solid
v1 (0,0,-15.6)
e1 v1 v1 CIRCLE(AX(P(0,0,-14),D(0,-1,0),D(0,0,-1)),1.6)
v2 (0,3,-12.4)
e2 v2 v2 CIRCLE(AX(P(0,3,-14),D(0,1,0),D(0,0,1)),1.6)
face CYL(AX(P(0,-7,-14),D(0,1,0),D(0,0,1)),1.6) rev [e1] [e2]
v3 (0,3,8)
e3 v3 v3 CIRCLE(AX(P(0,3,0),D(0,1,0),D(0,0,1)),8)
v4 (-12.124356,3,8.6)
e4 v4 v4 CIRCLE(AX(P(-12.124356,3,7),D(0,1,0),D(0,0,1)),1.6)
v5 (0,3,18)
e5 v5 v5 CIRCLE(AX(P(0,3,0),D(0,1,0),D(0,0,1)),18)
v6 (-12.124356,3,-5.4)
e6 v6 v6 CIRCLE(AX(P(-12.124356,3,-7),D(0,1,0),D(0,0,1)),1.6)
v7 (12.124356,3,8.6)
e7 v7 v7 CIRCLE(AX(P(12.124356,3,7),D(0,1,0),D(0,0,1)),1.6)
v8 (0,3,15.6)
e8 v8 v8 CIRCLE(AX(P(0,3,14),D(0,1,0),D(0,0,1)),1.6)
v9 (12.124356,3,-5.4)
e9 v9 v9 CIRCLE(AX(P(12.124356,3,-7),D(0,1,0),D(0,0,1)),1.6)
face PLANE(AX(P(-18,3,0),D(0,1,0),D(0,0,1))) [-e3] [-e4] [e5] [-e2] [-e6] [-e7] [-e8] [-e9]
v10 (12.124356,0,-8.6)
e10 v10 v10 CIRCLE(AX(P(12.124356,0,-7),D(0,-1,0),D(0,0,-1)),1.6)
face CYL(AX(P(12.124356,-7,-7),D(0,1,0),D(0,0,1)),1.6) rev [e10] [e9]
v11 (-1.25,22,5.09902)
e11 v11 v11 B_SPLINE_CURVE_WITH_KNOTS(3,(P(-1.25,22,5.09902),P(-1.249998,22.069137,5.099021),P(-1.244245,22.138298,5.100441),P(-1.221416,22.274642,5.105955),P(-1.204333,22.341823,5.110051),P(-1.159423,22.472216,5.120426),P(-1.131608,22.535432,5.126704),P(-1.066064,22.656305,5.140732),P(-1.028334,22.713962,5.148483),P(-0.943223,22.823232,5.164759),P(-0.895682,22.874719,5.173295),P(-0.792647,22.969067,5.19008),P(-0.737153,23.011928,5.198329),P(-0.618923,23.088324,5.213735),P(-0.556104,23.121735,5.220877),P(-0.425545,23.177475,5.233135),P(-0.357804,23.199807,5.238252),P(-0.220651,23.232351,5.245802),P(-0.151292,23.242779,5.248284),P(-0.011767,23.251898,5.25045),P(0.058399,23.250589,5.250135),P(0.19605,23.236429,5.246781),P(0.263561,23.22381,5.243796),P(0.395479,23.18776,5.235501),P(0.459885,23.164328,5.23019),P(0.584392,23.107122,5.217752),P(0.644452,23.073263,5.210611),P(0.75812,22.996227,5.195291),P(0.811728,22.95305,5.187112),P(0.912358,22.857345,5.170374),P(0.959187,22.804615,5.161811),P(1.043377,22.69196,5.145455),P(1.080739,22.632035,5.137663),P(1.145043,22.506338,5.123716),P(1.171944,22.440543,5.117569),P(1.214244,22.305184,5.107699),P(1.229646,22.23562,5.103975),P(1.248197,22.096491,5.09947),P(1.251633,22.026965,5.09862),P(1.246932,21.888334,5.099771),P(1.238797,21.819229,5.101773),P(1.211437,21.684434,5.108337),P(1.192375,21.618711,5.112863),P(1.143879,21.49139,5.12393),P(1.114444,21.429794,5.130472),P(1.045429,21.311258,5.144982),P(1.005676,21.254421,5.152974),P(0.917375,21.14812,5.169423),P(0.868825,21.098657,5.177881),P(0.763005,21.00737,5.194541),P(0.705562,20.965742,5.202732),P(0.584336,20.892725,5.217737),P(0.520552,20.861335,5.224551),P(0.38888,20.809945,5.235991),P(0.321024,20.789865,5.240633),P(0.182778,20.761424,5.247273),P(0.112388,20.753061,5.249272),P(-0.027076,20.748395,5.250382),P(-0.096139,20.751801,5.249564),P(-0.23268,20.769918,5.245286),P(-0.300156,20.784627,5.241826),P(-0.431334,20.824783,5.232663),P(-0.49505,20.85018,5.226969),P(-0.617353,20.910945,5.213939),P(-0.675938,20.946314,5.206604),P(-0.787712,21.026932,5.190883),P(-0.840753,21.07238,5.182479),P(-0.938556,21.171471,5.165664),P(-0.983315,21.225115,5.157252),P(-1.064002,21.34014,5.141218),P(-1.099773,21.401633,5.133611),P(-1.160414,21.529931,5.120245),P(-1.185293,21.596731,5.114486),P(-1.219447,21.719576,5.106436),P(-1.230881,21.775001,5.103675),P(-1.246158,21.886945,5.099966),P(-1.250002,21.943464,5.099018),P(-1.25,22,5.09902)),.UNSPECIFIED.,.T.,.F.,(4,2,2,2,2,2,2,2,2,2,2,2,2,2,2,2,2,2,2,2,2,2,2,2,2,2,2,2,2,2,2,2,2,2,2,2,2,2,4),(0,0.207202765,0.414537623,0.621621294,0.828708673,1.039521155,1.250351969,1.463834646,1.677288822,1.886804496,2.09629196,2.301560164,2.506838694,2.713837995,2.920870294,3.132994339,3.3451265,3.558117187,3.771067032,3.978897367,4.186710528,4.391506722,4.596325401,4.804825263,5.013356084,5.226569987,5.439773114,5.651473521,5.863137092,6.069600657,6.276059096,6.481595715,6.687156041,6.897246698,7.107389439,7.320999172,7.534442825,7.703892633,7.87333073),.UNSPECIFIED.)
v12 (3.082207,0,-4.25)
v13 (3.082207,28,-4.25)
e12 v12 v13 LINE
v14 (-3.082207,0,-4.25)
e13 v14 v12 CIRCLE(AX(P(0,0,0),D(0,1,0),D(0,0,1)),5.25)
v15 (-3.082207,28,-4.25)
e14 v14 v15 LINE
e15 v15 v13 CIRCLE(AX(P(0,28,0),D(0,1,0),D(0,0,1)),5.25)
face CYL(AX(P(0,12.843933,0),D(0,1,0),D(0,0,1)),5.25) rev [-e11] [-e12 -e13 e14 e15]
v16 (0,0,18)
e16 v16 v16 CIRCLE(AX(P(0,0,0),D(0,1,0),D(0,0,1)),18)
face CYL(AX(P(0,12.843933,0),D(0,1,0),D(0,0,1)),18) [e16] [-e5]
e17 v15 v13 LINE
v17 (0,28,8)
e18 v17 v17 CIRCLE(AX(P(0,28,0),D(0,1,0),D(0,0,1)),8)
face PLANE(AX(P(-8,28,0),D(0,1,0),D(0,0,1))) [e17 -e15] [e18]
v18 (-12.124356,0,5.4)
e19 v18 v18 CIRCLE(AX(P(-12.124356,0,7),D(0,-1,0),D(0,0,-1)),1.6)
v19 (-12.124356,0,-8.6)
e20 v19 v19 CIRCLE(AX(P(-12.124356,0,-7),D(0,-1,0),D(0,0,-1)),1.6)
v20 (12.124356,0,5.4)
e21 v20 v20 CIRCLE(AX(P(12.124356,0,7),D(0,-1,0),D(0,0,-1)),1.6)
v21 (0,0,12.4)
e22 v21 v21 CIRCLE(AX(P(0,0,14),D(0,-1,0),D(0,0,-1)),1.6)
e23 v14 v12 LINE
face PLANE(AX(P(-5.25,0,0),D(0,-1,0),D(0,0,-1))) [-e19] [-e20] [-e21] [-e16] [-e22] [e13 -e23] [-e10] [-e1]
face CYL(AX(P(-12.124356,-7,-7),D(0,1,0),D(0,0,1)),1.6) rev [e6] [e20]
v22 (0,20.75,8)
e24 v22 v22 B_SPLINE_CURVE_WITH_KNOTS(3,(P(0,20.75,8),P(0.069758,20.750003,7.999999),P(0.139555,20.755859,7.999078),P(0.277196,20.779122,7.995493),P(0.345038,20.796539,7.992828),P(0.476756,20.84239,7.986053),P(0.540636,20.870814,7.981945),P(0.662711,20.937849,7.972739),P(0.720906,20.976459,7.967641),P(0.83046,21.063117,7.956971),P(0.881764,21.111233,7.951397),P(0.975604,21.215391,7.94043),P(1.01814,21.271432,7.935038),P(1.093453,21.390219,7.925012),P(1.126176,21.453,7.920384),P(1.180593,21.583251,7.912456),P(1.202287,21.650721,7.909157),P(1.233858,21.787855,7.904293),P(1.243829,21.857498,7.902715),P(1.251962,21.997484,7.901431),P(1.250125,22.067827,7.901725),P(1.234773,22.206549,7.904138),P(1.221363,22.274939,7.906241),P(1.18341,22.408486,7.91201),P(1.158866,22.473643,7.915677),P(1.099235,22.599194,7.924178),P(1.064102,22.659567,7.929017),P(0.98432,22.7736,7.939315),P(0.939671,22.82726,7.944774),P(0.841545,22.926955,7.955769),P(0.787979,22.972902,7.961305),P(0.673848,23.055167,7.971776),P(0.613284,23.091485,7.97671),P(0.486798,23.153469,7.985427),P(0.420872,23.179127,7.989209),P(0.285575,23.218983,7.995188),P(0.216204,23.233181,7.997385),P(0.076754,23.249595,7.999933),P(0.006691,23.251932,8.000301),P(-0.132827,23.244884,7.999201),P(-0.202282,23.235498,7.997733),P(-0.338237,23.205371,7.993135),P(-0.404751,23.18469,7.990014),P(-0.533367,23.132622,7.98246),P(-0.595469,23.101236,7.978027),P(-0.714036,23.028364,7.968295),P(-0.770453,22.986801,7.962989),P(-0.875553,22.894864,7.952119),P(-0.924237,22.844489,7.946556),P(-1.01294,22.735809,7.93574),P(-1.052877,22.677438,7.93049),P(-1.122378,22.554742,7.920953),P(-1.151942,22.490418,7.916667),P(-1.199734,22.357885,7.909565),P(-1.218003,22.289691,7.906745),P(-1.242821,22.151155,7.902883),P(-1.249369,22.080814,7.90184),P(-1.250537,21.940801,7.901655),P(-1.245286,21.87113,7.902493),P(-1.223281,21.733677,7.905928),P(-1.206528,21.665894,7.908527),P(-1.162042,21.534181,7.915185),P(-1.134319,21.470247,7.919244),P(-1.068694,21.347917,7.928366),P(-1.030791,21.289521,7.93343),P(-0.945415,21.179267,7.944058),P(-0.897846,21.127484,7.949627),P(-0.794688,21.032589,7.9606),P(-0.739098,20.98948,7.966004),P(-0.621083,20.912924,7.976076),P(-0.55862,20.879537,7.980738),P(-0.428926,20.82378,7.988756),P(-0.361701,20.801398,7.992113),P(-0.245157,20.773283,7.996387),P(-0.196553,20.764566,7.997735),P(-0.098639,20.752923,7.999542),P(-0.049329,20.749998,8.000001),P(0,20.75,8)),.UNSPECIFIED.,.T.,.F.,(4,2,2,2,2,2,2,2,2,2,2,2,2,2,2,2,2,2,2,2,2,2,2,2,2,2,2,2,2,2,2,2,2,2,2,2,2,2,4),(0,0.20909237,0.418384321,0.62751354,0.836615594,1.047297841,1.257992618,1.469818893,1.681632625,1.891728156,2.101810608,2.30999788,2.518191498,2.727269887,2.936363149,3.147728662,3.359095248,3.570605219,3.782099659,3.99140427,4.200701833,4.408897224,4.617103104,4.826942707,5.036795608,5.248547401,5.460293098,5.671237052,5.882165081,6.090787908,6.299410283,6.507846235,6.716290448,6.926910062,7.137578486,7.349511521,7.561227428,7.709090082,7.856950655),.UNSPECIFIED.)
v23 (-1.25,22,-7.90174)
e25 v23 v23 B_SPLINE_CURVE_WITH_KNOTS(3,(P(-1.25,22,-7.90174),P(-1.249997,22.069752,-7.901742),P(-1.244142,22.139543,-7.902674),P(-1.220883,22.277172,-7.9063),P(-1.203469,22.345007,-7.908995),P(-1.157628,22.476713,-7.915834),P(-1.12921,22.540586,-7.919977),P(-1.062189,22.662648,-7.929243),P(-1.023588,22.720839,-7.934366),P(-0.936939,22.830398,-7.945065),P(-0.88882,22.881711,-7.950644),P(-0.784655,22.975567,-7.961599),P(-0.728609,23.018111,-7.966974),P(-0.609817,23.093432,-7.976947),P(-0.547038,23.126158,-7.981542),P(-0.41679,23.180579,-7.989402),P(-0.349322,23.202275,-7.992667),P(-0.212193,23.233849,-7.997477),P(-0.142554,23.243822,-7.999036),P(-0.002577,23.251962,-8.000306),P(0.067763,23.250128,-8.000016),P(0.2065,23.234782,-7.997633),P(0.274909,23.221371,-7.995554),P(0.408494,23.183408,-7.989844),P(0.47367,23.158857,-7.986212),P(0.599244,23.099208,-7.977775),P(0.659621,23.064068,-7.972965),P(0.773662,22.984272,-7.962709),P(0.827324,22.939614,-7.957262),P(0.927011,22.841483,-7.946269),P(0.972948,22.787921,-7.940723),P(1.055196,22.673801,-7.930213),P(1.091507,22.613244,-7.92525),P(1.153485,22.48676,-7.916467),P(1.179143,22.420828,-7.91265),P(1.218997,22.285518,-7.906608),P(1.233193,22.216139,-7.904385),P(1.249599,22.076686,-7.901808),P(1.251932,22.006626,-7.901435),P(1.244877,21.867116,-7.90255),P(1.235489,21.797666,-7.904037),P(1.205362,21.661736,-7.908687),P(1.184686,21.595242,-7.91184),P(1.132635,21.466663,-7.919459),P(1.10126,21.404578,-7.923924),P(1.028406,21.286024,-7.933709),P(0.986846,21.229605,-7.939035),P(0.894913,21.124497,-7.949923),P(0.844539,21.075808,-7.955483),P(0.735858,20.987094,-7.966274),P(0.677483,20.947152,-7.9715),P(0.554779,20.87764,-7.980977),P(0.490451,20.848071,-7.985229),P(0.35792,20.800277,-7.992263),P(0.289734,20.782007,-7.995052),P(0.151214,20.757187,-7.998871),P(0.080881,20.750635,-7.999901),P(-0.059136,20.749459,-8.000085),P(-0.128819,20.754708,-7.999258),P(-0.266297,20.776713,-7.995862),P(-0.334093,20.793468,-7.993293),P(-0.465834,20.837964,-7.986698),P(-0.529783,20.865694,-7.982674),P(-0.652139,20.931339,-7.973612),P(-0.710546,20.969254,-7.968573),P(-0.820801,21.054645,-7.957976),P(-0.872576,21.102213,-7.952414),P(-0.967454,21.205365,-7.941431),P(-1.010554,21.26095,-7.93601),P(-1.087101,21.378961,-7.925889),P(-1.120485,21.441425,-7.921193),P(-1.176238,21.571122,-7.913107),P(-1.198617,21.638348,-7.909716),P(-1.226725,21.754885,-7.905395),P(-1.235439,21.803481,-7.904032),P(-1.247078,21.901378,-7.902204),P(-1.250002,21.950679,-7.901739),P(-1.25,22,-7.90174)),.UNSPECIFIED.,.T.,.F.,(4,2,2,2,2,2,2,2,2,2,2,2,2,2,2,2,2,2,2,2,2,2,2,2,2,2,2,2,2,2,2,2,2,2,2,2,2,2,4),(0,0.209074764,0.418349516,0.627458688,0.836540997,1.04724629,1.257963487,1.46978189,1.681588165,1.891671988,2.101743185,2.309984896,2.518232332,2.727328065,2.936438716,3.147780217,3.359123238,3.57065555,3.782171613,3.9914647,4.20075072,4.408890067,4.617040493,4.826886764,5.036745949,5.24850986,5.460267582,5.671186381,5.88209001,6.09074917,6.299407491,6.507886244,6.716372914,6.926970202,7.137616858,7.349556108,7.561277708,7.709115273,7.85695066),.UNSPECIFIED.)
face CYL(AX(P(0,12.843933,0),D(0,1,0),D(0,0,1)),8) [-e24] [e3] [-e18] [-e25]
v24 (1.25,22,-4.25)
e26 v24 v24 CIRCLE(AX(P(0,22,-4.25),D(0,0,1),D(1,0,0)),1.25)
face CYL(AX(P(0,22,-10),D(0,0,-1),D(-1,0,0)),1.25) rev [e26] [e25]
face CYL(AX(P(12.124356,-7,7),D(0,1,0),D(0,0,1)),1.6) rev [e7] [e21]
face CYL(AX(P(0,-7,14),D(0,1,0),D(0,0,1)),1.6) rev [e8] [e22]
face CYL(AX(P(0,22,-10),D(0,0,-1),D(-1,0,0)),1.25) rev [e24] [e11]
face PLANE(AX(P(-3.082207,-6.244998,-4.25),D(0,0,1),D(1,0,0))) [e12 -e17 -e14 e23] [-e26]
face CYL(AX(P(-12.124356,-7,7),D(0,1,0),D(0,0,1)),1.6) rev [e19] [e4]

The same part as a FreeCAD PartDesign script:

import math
import FreeCAD as App
import Part
import Sketcher


def add_polygon(sketch, points):
    """Adds a closed chain of lines whose ends are joined by coincident constraints."""
    first, n = sketch.GeometryCount, len(points)
    for a, b in zip(points, points[1:] + points[:1]):
        sketch.addGeometry(Part.LineSegment(App.Vector(*a, 0), App.Vector(*b, 0)), False)
    for i in range(n):
        sketch.addConstraint(Sketcher.Constraint("Coincident", first + i, 2, first + (i + 1) % n, 1))

doc = App.newDocument("Part")
body = doc.addObject("PartDesign::Body", "Body")

sketch1 = body.newObject("Sketcher::SketchObject", "Sketch")
sketch1.AttachmentSupport = (doc.getObject("XY_Plane"), [""])
sketch1.MapMode = "FlatFace"
add_polygon(sketch1, [(-18, 0), (-5.25, 0), (-5.25, 28), (-8, 28), (-8, 3), (-18, 3)])
sketch1.addConstraint([
    Sketcher.Constraint("Horizontal", 0),
    Sketcher.Constraint("Vertical", 1),
    Sketcher.Constraint("Horizontal", 2),
    Sketcher.Constraint("Vertical", 3),
    Sketcher.Constraint("Horizontal", 4),
    Sketcher.Constraint("Vertical", 5),
    Sketcher.Constraint("PointOnObject", 0, 2, -1),
    Sketcher.Constraint("DistanceX", 4, 2, 4, 1, 10.0),
    Sketcher.Constraint("DistanceY", 1, 1, 1, 2, 28.0),
    Sketcher.Constraint("DistanceY", 3, 2, 3, 1, 25.0),
    Sketcher.Constraint("DistanceX", 2, 2, -1, 1, 8.0),
    Sketcher.Constraint("DistanceX", 0, 1, 0, 2, 12.75),
])
revolution = body.newObject("PartDesign::Revolution", "Revolution")
revolution.Profile = sketch1
revolution.ReferenceAxis = (sketch1, ["V_Axis"])
revolution.Angle = 360

sketch2 = body.newObject("Sketcher::SketchObject", "Sketch001")
sketch2.AttachmentSupport = (doc.getObject("XZ_Plane"), [""])
sketch2.MapMode = "FlatFace"
sketch2.AttachmentOffset = App.Placement(App.Vector(0, 0, -3), App.Rotation())
sketch2.addGeometry([
    Part.Circle(App.Vector(0, -14, 0), App.Vector(0, 0, 1), 1.6),
    Part.Circle(App.Vector(12.124356, -7, 0), App.Vector(0, 0, 1), 1.6),
    Part.Circle(App.Vector(12.124356, 7, 0), App.Vector(0, 0, 1), 1.6),
    Part.Circle(App.Vector(0, 14, 0), App.Vector(0, 0, 1), 1.6),
    Part.Circle(App.Vector(-12.124356, 7, 0), App.Vector(0, 0, 1), 1.6),
    Part.Circle(App.Vector(-12.124356, -7, 0), App.Vector(0, 0, 1), 1.6),
], False)
sketch2.addConstraint([
    Sketcher.Constraint("Equal", 0, 1),
    Sketcher.Constraint("Equal", 1, 2),
    Sketcher.Constraint("Equal", 2, 3),
    Sketcher.Constraint("Equal", 3, 4),
    Sketcher.Constraint("Equal", 4, 5),
    Sketcher.Constraint("Symmetric", 0, 3, 3, 3, -1, 1),
    Sketcher.Constraint("Symmetric", 1, 3, 4, 3, -1, 1),
    Sketcher.Constraint("Symmetric", 2, 3, 5, 3, -1, 1),
    Sketcher.Constraint("Symmetric", 2, 3, 4, 3, -2),
    Sketcher.Constraint("PointOnObject", 0, 3, -2),
    Sketcher.Constraint("Diameter", 0, 3.2),
    Sketcher.Constraint("DistanceY", 0, 3, -1, 1, 14.0),
    Sketcher.Constraint("DistanceY", 1, 3, -1, 1, 7.0),
    Sketcher.Constraint("DistanceX", 4, 3, 2, 3, 24.248711),
])
pocket1 = body.newObject("PartDesign::Pocket", "Pocket")
pocket1.Profile = sketch2
pocket1.Length = 10
pocket1.Reversed = True

sketch3 = body.newObject("Sketcher::SketchObject", "Sketch002")
sketch3.AttachmentSupport = (doc.getObject("XZ_Plane"), [""])
sketch3.MapMode = "FlatFace"
sketch3.addGeometry([
    Part.LineSegment(App.Vector(-3.082207, -4.25, 0), App.Vector(3.082207, -4.25, 0)),
    Part.ArcOfCircle(Part.Circle(App.Vector(0, 0, 0), App.Vector(0, 0, 1), 5.25), math.radians(-125.950568), math.radians(-54.049432)),
], False)
sketch3.addConstraint([
    Sketcher.Constraint("Coincident", 0, 1, 1, 1),
    Sketcher.Constraint("Coincident", 1, 2, 0, 2),
    Sketcher.Constraint("Horizontal", 0),
    Sketcher.Constraint("Coincident", 1, 3, -1, 1),
    Sketcher.Constraint("Radius", 1, 5.25),
    Sketcher.Constraint("DistanceY", 0, 1, -1, 1, 4.25),
])
pad1 = body.newObject("PartDesign::Pad", "Pad")
pad1.Profile = sketch3
pad1.Length = 28
pad1.Reversed = True

sketch4 = body.newObject("Sketcher::SketchObject", "Sketch003")
sketch4.AttachmentSupport = (doc.getObject("XY_Plane"), [""])
sketch4.MapMode = "FlatFace"
sketch4.AttachmentOffset = App.Placement(App.Vector(0, 0, -10), App.Rotation())
sketch4.addGeometry(Part.Circle(App.Vector(0, 22, 0), App.Vector(0, 0, 1), 1.25), False)
sketch4.addConstraint([
    Sketcher.Constraint("PointOnObject", 0, 3, -2),
    Sketcher.Constraint("Diameter", 0, 2.5),
    Sketcher.Constraint("DistanceY", -1, 1, 0, 3, 22.0),
])
doc.recompute()
hole = body.newObject("PartDesign::Hole", "Hole")
hole.Profile = sketch4
hole.ThreadType = "None"
hole.Diameter = 2.5
hole.DepthType = "ThroughAll"
hole.Reversed = True

doc.recompute()
